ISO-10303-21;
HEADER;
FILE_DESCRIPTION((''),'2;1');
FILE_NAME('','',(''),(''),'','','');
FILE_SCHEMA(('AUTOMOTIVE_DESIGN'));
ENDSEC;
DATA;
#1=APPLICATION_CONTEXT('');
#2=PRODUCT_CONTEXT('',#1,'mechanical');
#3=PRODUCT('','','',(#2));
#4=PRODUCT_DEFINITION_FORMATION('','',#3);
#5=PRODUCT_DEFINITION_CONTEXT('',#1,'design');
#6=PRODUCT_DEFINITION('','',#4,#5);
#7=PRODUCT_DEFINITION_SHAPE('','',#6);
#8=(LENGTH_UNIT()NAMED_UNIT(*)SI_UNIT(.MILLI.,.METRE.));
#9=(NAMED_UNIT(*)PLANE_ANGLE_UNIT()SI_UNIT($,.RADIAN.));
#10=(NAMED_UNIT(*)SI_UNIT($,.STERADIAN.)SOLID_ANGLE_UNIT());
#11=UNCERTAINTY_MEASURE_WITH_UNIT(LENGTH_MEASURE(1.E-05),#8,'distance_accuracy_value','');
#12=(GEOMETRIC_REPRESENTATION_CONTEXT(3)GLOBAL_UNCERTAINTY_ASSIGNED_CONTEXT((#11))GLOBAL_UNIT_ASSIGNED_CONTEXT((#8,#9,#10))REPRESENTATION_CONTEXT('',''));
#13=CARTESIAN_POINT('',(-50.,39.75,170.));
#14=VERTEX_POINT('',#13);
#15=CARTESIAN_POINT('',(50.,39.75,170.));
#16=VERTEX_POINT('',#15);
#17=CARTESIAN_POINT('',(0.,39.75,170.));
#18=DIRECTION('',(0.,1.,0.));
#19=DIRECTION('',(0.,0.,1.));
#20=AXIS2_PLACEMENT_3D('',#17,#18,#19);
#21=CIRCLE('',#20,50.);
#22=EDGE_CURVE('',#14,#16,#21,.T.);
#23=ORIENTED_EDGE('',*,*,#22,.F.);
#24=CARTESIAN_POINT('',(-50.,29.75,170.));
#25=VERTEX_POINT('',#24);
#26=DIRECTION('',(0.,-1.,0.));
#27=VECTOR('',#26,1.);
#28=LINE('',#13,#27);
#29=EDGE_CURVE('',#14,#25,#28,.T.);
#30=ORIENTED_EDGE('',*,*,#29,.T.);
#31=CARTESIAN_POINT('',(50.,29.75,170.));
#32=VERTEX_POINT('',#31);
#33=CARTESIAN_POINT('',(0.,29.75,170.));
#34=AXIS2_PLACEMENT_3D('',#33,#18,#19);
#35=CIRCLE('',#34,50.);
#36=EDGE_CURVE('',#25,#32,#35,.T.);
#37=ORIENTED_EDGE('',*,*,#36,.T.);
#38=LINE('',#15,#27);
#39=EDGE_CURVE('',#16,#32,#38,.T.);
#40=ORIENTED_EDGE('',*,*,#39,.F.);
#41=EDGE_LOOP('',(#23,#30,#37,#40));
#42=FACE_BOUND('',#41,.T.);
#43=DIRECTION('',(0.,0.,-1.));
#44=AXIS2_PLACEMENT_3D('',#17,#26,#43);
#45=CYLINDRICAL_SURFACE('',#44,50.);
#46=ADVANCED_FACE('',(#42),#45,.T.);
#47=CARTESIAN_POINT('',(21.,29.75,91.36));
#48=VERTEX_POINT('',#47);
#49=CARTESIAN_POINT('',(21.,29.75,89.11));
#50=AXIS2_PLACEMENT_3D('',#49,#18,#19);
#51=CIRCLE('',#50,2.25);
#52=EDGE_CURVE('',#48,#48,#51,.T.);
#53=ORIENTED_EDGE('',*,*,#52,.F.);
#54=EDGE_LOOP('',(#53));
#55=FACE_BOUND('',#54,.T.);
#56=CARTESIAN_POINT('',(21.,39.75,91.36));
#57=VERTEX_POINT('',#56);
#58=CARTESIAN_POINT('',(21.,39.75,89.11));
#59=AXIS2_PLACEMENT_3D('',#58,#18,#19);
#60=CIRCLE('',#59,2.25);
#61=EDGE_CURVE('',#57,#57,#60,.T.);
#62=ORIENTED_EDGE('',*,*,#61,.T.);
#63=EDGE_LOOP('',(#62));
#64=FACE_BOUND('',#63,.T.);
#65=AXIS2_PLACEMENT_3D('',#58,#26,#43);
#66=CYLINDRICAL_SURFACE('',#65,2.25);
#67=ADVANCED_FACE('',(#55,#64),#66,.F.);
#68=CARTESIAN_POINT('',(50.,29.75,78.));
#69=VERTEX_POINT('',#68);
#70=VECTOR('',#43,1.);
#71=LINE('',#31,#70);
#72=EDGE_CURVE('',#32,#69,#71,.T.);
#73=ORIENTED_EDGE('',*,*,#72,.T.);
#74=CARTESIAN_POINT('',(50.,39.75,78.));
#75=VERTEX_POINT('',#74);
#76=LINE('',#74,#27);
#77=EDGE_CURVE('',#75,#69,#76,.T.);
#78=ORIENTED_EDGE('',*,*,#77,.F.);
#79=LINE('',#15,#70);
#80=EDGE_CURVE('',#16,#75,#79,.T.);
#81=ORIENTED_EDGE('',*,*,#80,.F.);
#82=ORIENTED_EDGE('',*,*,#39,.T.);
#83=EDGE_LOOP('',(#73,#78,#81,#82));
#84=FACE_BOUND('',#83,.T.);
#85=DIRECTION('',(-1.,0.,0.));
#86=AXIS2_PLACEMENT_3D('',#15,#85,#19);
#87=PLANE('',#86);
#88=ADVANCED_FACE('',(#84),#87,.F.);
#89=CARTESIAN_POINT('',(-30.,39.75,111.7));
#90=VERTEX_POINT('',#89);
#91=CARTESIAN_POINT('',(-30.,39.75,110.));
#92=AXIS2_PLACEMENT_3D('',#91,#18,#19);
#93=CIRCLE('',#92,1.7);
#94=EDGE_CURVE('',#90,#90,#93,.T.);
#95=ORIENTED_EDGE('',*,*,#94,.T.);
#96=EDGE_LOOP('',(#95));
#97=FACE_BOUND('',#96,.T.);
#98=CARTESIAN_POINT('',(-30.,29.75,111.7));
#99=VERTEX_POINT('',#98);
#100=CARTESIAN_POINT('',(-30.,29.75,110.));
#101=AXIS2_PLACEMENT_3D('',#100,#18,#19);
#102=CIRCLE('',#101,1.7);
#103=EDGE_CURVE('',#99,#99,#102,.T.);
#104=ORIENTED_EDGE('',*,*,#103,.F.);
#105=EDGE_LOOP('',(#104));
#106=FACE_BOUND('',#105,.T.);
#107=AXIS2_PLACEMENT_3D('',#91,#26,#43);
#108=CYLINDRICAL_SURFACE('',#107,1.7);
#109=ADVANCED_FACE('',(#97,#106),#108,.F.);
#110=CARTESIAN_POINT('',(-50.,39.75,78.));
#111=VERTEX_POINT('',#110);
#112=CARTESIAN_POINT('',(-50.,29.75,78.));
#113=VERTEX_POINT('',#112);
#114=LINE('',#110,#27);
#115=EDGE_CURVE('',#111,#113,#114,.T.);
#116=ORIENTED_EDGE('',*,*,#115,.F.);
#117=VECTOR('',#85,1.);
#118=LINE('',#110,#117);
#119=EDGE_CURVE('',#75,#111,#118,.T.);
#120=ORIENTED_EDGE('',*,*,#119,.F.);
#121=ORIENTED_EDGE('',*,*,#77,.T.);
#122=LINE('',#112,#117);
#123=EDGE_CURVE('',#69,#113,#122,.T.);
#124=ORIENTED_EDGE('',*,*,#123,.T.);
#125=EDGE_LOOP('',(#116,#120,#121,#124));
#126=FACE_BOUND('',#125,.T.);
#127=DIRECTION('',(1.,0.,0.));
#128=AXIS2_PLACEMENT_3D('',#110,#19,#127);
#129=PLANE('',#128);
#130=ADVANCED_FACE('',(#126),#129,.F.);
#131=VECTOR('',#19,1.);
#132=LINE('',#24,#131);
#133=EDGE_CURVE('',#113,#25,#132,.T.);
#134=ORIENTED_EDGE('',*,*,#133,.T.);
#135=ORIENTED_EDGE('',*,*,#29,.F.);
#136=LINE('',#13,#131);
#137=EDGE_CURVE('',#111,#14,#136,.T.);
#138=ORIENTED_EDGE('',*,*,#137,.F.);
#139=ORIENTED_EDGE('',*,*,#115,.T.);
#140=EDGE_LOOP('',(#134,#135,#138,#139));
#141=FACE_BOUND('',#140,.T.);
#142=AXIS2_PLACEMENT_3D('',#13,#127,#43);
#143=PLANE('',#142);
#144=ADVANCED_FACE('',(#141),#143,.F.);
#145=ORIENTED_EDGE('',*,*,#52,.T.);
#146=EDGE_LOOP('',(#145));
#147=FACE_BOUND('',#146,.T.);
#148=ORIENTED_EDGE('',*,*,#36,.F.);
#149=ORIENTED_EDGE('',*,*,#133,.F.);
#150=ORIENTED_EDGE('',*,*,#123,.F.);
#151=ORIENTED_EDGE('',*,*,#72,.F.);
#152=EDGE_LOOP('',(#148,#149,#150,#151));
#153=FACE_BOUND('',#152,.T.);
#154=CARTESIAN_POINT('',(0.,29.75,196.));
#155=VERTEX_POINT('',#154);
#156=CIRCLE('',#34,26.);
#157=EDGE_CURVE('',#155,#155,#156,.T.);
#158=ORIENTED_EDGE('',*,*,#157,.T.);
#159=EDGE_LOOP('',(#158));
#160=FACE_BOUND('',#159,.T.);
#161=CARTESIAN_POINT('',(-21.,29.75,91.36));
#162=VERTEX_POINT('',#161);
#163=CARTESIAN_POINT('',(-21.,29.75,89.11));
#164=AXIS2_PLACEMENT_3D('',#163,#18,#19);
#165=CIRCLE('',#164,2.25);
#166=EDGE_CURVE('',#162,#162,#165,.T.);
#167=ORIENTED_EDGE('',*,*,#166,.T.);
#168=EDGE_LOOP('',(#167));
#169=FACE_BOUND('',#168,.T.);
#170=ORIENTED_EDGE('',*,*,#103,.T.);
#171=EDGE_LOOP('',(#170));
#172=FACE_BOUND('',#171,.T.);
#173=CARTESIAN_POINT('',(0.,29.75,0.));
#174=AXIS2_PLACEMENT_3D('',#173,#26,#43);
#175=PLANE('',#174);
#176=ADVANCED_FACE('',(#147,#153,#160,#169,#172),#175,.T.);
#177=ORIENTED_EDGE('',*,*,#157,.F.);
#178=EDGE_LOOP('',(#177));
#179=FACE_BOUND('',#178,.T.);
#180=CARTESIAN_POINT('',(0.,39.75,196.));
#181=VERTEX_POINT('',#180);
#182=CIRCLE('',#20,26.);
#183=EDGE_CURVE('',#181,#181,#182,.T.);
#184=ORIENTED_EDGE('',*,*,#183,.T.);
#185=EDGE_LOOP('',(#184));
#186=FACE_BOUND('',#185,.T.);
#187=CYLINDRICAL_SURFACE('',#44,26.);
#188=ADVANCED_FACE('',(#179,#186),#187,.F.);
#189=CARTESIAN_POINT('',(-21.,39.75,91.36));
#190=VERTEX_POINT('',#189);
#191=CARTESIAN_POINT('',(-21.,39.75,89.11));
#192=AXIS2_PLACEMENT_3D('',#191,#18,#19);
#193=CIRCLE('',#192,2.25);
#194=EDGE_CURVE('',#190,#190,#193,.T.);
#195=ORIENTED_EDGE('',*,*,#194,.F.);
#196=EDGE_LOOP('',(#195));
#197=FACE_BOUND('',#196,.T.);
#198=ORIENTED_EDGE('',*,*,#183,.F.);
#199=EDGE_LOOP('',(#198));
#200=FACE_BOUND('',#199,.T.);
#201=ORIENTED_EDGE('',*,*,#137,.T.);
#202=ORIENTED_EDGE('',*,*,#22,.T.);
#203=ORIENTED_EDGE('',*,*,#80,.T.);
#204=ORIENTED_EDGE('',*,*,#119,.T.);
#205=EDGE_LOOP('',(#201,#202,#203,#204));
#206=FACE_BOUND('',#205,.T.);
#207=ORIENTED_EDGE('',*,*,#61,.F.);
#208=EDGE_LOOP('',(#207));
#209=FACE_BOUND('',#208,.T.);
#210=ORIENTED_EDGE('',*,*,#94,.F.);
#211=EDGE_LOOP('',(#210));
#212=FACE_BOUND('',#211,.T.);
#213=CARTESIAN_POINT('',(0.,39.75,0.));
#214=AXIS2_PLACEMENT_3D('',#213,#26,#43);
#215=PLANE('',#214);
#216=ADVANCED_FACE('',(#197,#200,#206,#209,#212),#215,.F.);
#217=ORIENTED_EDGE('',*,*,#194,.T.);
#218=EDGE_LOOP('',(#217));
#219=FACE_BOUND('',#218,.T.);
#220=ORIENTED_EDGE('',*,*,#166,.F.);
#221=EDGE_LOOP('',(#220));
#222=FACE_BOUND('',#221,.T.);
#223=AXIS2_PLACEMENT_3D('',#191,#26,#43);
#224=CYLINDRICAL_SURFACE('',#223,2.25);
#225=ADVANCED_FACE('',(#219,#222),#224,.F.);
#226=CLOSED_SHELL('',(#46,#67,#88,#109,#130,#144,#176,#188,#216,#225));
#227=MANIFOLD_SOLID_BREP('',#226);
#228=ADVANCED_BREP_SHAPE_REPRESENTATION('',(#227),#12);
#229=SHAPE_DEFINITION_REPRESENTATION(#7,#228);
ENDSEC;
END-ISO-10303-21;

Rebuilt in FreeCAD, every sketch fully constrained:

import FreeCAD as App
import Part
import Sketcher

doc = App.newDocument("Part")
body = doc.addObject("PartDesign::Body", "Body")

# Sketch on XZ plane
sketch1 = doc.addObject("Sketcher::SketchObject", "Sketch")
body.addObject(sketch1)
sketch1.AttachmentSupport = (doc.XZ_Plane, [""])
sketch1.MapMode = "FlatFace"
sketch1.AttachmentOffset = App.Placement(App.Vector(0, 0, -29.75), App.Rotation())
sketch1.addGeometry([
    Part.LineSegment(App.Vector(-50, 78, 0), App.Vector(-50, 170, 0)),
    Part.LineSegment(App.Vector(-50, 170, 0), App.Vector(50, 170, 0)),
    Part.LineSegment(App.Vector(50, 170, 0), App.Vector(50, 78, 0)),
    Part.LineSegment(App.Vector(50, 78, 0), App.Vector(-50, 78, 0)),
], False)
sketch1.addConstraint([
    Sketcher.Constraint("Coincident", 0, 2, 1, 1),
    Sketcher.Constraint("Coincident", 1, 2, 2, 1),
    Sketcher.Constraint("Coincident", 2, 2, 3, 1),
    Sketcher.Constraint("Coincident", 3, 2, 0, 1),
    Sketcher.Constraint("Vertical", 0),
    Sketcher.Constraint("Horizontal", 1),
    Sketcher.Constraint("Vertical", 2),
    Sketcher.Constraint("Horizontal", 3),
    Sketcher.Constraint("DistanceX", 1, 1, 1, 2, 100.0),
    Sketcher.Constraint("DistanceY", 0, 1, 0, 2, 92.0),
    Sketcher.Constraint("DistanceX", 0, 2, -1, 1, 50.0),
    Sketcher.Constraint("DistanceY", -1, 1, 0, 2, 170.0),
])
pad1 = doc.addObject("PartDesign::Pad", "Pad")
body.addObject(pad1)
pad1.Profile = sketch1
pad1.Length = 10
pad1.Reversed = True

# Sketch on XZ plane
sketch2 = doc.addObject("Sketcher::SketchObject", "Sketch001")
body.addObject(sketch2)
sketch2.AttachmentSupport = (doc.XZ_Plane, [""])
sketch2.MapMode = "FlatFace"
sketch2.AttachmentOffset = App.Placement(App.Vector(0, 0, -29.75), App.Rotation())
sketch2.addGeometry(Part.Circle(App.Vector(0, 170, 0), App.Vector(0, 0, 1), 50), False)
sketch2.addConstraint([
    Sketcher.Constraint("PointOnObject", 0, 3, -2),
    Sketcher.Constraint("Diameter", 0, 100.0),
    Sketcher.Constraint("DistanceY", -1, 1, 0, 3, 170.0),
])
pad2 = doc.addObject("PartDesign::Pad", "Pad001")
body.addObject(pad2)
pad2.Profile = sketch2
pad2.Length = 10
pad2.Reversed = True

# Sketch on XZ plane
sketch3 = doc.addObject("Sketcher::SketchObject", "Sketch002")
body.addObject(sketch3)
sketch3.AttachmentSupport = (doc.XZ_Plane, [""])
sketch3.MapMode = "FlatFace"
sketch3.AttachmentOffset = App.Placement(App.Vector(0, 0, -29.75), App.Rotation())
sketch3.addGeometry(Part.Circle(App.Vector(0, 170, 0), App.Vector(0, 0, 1), 26), False)
sketch3.addConstraint([
    Sketcher.Constraint("PointOnObject", 0, 3, -2),
    Sketcher.Constraint("Diameter", 0, 52.0),
    Sketcher.Constraint("DistanceY", -1, 1, 0, 3, 170.0),
])
pocket1 = doc.addObject("PartDesign::Pocket", "Pocket")
body.addObject(pocket1)
pocket1.Profile = sketch3
pocket1.Length = 10

# Sketch on XZ plane
sketch4 = doc.addObject("Sketcher::SketchObject", "Sketch003")
body.addObject(sketch4)
sketch4.AttachmentSupport = (doc.XZ_Plane, [""])
sketch4.MapMode = "FlatFace"
sketch4.AttachmentOffset = App.Placement(App.Vector(0, 0, -29.75), App.Rotation())
sketch4.addGeometry([
    Part.Circle(App.Vector(-21, 89.1, 0), App.Vector(0, 0, 1), 2.2),
    Part.Circle(App.Vector(21, 89.1, 0), App.Vector(0, 0, 1), 2.2),
], False)
sketch4.addConstraint([
    Sketcher.Constraint("Equal", 0, 1),
    Sketcher.Constraint("Symmetric", 0, 3, 1, 3, -2),
    Sketcher.Constraint("Diameter", 0, 4.5),
    Sketcher.Constraint("DistanceX", 0, 3, -1, 1, 21.0),
    Sketcher.Constraint("DistanceY", -1, 1, 0, 3, 89.11),
])
pocket2 = doc.addObject("PartDesign::Pocket", "Pocket001")
body.addObject(pocket2)
pocket2.Profile = sketch4
pocket2.Length = 10

# Sketch on XZ plane
sketch5 = doc.addObject("Sketcher::SketchObject", "Sketch004")
body.addObject(sketch5)
sketch5.AttachmentSupport = (doc.XZ_Plane, [""])
sketch5.MapMode = "FlatFace"
sketch5.AttachmentOffset = App.Placement(App.Vector(0, 0, -29.75), App.Rotation())
sketch5.addGeometry(Part.Circle(App.Vector(-30, 110, 0), App.Vector(0, 0, 1), 1.7), False)
sketch5.addConstraint([
    Sketcher.Constraint("Diameter", 0, 3.4),
    Sketcher.Constraint("DistanceX", 0, 3, -1, 1, 30.0),
    Sketcher.Constraint("DistanceY", -1, 1, 0, 3, 110.0),
])
pocket3 = doc.addObject("PartDesign::Pocket", "Pocket002")
body.addObject(pocket3)
pocket3.Profile = sketch5
pocket3.Length = 10

doc.recompute()
